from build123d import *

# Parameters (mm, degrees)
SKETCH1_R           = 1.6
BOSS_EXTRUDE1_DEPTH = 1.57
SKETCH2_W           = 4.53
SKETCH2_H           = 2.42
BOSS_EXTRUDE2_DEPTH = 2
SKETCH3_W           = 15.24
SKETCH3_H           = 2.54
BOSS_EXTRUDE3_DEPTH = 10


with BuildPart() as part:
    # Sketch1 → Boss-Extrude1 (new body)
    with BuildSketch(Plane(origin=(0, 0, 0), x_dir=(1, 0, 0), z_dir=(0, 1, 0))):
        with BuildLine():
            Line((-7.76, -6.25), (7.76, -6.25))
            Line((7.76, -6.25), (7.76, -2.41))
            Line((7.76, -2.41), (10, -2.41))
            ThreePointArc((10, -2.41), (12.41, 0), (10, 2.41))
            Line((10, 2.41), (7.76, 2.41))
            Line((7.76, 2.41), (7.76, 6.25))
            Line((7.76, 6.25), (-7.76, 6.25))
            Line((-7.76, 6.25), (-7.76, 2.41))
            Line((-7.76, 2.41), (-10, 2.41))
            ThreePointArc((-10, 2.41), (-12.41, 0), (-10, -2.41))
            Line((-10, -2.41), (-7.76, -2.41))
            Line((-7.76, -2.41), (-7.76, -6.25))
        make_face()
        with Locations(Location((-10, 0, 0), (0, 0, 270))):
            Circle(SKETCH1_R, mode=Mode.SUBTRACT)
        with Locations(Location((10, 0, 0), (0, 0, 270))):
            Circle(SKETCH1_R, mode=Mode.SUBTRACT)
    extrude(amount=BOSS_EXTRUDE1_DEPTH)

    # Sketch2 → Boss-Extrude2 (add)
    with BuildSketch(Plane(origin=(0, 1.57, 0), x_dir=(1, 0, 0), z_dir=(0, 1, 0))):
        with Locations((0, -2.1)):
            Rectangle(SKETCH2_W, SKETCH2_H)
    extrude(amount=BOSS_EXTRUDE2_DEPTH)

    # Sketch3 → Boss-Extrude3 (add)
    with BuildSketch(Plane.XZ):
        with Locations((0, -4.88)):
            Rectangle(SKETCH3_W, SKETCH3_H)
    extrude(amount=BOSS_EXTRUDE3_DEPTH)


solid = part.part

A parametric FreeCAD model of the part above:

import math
import FreeCAD as App
import Part
import Sketcher
from FreeCAD import Vector
Q = App.Units.Quantity


def add_polygon(sketch, points):
    """Adds a closed chain of lines whose ends are joined by coincident constraints."""
    first, n = sketch.GeometryCount, len(points)
    for a, b in zip(points, points[1:] + points[:1]):
        sketch.addGeometry(Part.LineSegment(App.Vector(*a, 0), App.Vector(*b, 0)), False)
    for i in range(n):
        sketch.addConstraint(Sketcher.Constraint("Coincident", first + i, 2, first + (i + 1) % n, 1))

doc = App.newDocument("Part")
body = doc.addObject("PartDesign::Body", "Body")

sketch1 = body.newObject("Sketcher::SketchObject", "Sketch")
sketch1.AttachmentSupport = (doc.getObject("XZ_Plane"), [""])
sketch1.MapMode = "FlatFace"
sketch1.addGeometry([
    Part.LineSegment(Vector(-7.8, 6.2, 0), Vector(7.8, 6.2, 0)),
    Part.LineSegment(Vector(7.8, 6.2, 0), Vector(7.8, 2.4, 0)),
    Part.LineSegment(Vector(7.8, 2.4, 0), Vector(10, 2.4, 0)),
    Part.ArcOfCircle(Part.Circle(Vector(10, 0, 0), Vector(0, 0, 1), 2.4), math.radians(-90), math.radians(90)),
    Part.LineSegment(Vector(10, -2.4, 0), Vector(7.8, -2.4, 0)),
    Part.LineSegment(Vector(7.8, -2.4, 0), Vector(7.8, -6.2, 0)),
    Part.LineSegment(Vector(7.8, -6.2, 0), Vector(-7.8, -6.2, 0)),
    Part.LineSegment(Vector(-7.8, -6.2, 0), Vector(-7.8, -2.4, 0)),
    Part.LineSegment(Vector(-7.8, -2.4, 0), Vector(-10, -2.4, 0)),
    Part.ArcOfCircle(Part.Circle(Vector(-10, 0, 0), Vector(0, 0, 1), 2.4), math.radians(90), math.radians(270)),
    Part.LineSegment(Vector(-10, 2.4, 0), Vector(-7.8, 2.4, 0)),
    Part.LineSegment(Vector(-7.8, 2.4, 0), Vector(-7.8, 6.2, 0)),
    Part.Circle(Vector(-10, 0, 0), Vector(0, 0, 1), 1.6),
    Part.Circle(Vector(10, 0, 0), Vector(0, 0, 1), 1.6),
], False)
sketch1.addConstraint([
    Sketcher.Constraint("Coincident", 0, 2, 1, 1),
    Sketcher.Constraint("Coincident", 1, 2, 2, 1),
    Sketcher.Constraint("Tangent", 2, 2, 3, 2),
    Sketcher.Constraint("Tangent", 3, 1, 4, 1),
    Sketcher.Constraint("Coincident", 4, 2, 5, 1),
    Sketcher.Constraint("Coincident", 5, 2, 6, 1),
    Sketcher.Constraint("Coincident", 6, 2, 7, 1),
    Sketcher.Constraint("Coincident", 7, 2, 8, 1),
    Sketcher.Constraint("Tangent", 8, 2, 9, 2),
    Sketcher.Constraint("Tangent", 9, 1, 10, 1),
    Sketcher.Constraint("Coincident", 10, 2, 11, 1),
    Sketcher.Constraint("Coincident", 11, 2, 0, 1),
    Sketcher.Constraint("Horizontal", 0),
    Sketcher.Constraint("Vertical", 1),
    Sketcher.Constraint("Horizontal", 2),
    Sketcher.Constraint("Horizontal", 4),
    Sketcher.Constraint("Vertical", 5),
    Sketcher.Constraint("Horizontal", 6),
    Sketcher.Constraint("Vertical", 7),
    Sketcher.Constraint("Horizontal", 8),
    Sketcher.Constraint("Horizontal", 10),
    Sketcher.Constraint("Vertical", 11),
    Sketcher.Constraint("Coincident", 12, 3, 9, 3),
    Sketcher.Constraint("Coincident", 13, 3, 3, 3),
    Sketcher.Constraint("Equal", 3, 9),
    Sketcher.Constraint("Equal", 12, 13),
    Sketcher.Constraint("Symmetric", 3, 3, 9, 3, -1, 1),
    Sketcher.Constraint("Symmetric", 0, 2, 6, 2, -1, 1),
    Sketcher.Constraint("Symmetric", 4, 2, 7, 2, -2),
    Sketcher.Constraint("Vertical", 7, 2, 10, 2),
    Sketcher.Constraint("Diameter", 12, Q("3.2 mm")),
    Sketcher.Constraint("Radius", 3, Q("2.41 mm")),
    Sketcher.Constraint("DistanceX", -1, 1, 3, 3, Q("10 mm")),
    Sketcher.Constraint("DistanceX", 0, 1, 0, 2, Q("15.52 mm")),
    Sketcher.Constraint("DistanceY", 1, 2, 1, 1, Q("3.84 mm")),
])
pad1 = body.newObject("PartDesign::Pad", "Pad")
pad1.Profile = sketch1
pad1.Length = 1.57
pad1.Reversed = True

sketch2 = body.newObject("Sketcher::SketchObject", "Sketch001")
sketch2.AttachmentSupport = (doc.getObject("XZ_Plane"), [""])
sketch2.MapMode = "FlatFace"
sketch2.AttachmentOffset = App.Placement(Vector(0, 0, -1.57), App.Rotation())
add_polygon(sketch2, [(-2.3, 0.9), (-2.3, 3.3), (2.3, 3.3), (2.3, 0.9)])
sketch2.addConstraint([
    Sketcher.Constraint("Vertical", 0),
    Sketcher.Constraint("Horizontal", 1),
    Sketcher.Constraint("Vertical", 2),
    Sketcher.Constraint("Horizontal", 3),
    Sketcher.Constraint("DistanceX", 1, 1, 1, 2, Q("4.53 mm")),
    Sketcher.Constraint("DistanceY", 0, 1, 0, 2, Q("2.42 mm")),
    Sketcher.Constraint("DistanceY", -1, 1, 0, 2, Q("3.31 mm")),
    Sketcher.Constraint("DistanceX", 0, 2, -1, 1, Q("2.265 mm")),
])
pad2 = body.newObject("PartDesign::Pad", "Pad001")
pad2.Profile = sketch2
pad2.Length = 2
pad2.Reversed = True

sketch3 = body.newObject("Sketcher::SketchObject", "Sketch002")
sketch3.AttachmentSupport = (doc.getObject("XZ_Plane"), [""])
sketch3.MapMode = "FlatFace"
add_polygon(sketch3, [(-7.6, -3.6), (-7.6, -6.2), (7.6, -6.2), (7.6, -3.6)])
sketch3.addConstraint([
    Sketcher.Constraint("Vertical", 0),
    Sketcher.Constraint("Horizontal", 1),
    Sketcher.Constraint("Vertical", 2),
    Sketcher.Constraint("Horizontal", 3),
    Sketcher.Constraint("DistanceX", 1, 1, 1, 2, Q("15.24 mm")),
    Sketcher.Constraint("DistanceY", 0, 2, 0, 1, Q("2.54 mm")),
    Sketcher.Constraint("DistanceX", 0, 2, -1, 1, Q("7.62 mm")),
    Sketcher.Constraint("DistanceY", 0, 2, -1, 1, Q("6.15 mm")),
])
pad3 = body.newObject("PartDesign::Pad", "Pad002")
pad3.Profile = sketch3
pad3.Length = 10

doc.recompute()
